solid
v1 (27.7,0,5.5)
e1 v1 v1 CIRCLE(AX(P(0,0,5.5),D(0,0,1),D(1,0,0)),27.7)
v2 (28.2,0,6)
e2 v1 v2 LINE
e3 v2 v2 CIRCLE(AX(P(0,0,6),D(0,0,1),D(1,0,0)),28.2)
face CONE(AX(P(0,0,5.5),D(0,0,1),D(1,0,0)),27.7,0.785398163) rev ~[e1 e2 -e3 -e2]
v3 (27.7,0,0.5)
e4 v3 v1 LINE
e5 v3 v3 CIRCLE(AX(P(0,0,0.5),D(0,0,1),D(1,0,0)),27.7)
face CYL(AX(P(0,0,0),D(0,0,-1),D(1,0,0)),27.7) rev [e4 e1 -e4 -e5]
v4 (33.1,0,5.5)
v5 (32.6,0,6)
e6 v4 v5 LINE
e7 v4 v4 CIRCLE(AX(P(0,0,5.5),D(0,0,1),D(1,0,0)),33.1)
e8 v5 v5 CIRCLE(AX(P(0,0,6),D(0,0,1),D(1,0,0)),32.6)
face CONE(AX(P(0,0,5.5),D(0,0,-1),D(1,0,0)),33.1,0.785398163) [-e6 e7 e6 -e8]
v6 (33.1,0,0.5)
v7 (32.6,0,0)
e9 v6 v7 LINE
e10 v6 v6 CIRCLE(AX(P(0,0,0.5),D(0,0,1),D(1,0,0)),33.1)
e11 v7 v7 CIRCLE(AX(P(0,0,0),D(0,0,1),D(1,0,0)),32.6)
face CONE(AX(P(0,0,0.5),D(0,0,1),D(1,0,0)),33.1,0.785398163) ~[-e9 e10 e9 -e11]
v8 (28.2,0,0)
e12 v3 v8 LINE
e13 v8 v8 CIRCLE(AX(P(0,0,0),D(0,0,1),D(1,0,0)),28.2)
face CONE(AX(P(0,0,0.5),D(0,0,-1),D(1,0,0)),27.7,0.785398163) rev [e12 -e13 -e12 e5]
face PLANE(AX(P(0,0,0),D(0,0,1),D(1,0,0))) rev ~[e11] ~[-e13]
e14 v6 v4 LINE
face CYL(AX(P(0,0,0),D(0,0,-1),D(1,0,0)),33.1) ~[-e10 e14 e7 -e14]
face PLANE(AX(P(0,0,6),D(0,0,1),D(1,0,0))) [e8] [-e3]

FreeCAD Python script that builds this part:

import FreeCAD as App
import Part
import Sketcher

V = App.Vector


def edges_at(feature, points):
    """Names of the edges that pass closest to the given points."""
    edges = feature.Shape.Edges
    near = lambda p: min(range(len(edges)), key=lambda i: edges[i].distToShape(Part.Vertex(*p))[0])
    return sorted({f"Edge{near(p) + 1}" for p in points})

doc = App.newDocument("Part")
body = doc.addObject("PartDesign::Body", "Body")

# Sketch on XY plane
sketch1 = body.newObject("Sketcher::SketchObject", "Sketch")
sketch1.AttachmentSupport = (doc.getObject("XY_Plane"), [""])
sketch1.MapMode = "FlatFace"
sketch1.addGeometry([
    Part.Circle(V(0, 0, 0), V(0, 0, 1), 33),
    Part.Circle(V(0, 0, 0), V(0, 0, 1), 28),
], False)
sketch1.addConstraint([
    Sketcher.Constraint("Coincident", 0, 3, -1, 1),
    Sketcher.Constraint("Coincident", 1, 3, -1, 1),
    Sketcher.Constraint("Diameter", 0, 66.2),
    Sketcher.Constraint("Diameter", 1, 55.4),
])
pad1 = body.newObject("PartDesign::Pad", "Pad")
pad1.Profile = sketch1
pad1.Length = 6
doc.recompute()

chamfer = body.newObject("PartDesign::Chamfer", "Chamfer")
chamfer.Base = (pad1, edges_at(pad1, [
    (-27.7, 0, 6),
    (-27.7, 0, 0),
    (-33.1, 0, 6),
    (-33.1, 0, 0),
]))
chamfer.Size = 0.5

doc.recompute()
